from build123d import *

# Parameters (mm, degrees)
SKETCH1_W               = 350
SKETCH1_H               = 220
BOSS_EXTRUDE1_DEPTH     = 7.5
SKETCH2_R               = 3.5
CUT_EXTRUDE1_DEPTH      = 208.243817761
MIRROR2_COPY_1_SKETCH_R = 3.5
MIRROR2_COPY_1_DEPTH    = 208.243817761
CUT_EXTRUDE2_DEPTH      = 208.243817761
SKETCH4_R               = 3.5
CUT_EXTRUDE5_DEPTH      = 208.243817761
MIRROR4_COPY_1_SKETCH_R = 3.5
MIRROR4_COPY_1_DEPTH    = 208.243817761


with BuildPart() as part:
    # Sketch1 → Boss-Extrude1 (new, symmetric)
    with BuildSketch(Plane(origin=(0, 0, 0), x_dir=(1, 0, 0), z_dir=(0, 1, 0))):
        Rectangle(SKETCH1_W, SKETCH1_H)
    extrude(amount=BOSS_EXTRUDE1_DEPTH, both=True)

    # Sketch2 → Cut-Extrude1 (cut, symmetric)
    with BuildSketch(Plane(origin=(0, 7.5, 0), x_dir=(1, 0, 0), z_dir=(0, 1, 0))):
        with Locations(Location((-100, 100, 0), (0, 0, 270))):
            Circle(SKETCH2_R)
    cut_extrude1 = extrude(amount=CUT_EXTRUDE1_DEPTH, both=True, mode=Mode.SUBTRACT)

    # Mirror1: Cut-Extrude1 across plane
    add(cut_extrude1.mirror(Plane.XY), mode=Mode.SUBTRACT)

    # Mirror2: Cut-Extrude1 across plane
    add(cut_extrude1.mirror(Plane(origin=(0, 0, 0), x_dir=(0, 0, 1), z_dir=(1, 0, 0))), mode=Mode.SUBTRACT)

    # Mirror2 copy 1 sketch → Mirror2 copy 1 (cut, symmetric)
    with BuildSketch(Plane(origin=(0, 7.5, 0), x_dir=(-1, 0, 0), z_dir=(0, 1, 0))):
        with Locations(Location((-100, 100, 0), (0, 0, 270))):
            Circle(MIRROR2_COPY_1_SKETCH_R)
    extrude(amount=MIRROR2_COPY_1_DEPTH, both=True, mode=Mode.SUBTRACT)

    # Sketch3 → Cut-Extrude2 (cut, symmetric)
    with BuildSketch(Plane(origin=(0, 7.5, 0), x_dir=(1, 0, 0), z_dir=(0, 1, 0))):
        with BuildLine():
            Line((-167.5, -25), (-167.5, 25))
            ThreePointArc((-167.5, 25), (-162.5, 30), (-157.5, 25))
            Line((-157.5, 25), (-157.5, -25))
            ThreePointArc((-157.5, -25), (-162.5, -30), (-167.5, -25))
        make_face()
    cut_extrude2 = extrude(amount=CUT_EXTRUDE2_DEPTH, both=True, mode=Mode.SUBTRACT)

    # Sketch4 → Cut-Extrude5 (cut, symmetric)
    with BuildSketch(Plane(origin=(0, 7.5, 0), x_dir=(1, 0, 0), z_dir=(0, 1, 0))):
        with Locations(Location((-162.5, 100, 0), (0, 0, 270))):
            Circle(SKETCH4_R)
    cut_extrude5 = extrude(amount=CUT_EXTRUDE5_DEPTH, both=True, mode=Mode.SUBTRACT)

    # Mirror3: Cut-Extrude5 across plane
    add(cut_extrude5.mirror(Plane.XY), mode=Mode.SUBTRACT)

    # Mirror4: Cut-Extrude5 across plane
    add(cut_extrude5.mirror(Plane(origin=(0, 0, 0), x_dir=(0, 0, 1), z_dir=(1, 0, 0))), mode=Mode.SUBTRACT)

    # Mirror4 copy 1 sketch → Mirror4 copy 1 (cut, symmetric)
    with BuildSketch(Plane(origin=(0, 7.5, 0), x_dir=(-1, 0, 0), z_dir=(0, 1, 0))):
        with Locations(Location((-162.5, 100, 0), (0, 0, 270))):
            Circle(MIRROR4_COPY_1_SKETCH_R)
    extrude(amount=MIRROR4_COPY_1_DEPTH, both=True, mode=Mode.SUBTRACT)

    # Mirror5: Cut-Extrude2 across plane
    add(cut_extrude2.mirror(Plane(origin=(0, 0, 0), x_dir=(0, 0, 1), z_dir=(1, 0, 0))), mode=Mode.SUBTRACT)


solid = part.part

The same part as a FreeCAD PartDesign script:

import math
import FreeCAD as App
import Part
import Sketcher

doc = App.newDocument("Part")
body = doc.addObject("PartDesign::Body", "Body")

# Sketch on XZ plane
sketch1 = body.newObject("Sketcher::SketchObject", "Sketch")
sketch1.AttachmentSupport = (doc.getObject("XZ_Plane"), [""])
sketch1.MapMode = "FlatFace"
sketch1.addGeometry(Part.LineSegment(App.Vector(-175, -110, 0), App.Vector(-175, 110, 0)), False)
sketch1.addGeometry(Part.LineSegment(App.Vector(-175, 110, 0), App.Vector(175, 110, 0)), False)
sketch1.addGeometry(Part.LineSegment(App.Vector(175, 110, 0), App.Vector(175, -110, 0)), False)
sketch1.addGeometry(Part.LineSegment(App.Vector(175, -110, 0), App.Vector(-175, -110, 0)), False)
sketch1.addConstraint(Sketcher.Constraint("Coincident", 0, 2, 1, 1))
sketch1.addConstraint(Sketcher.Constraint("Coincident", 1, 2, 2, 1))
sketch1.addConstraint(Sketcher.Constraint("Coincident", 2, 2, 3, 1))
sketch1.addConstraint(Sketcher.Constraint("Coincident", 3, 2, 0, 1))
sketch1.addConstraint(Sketcher.Constraint("Vertical", 0))
sketch1.addConstraint(Sketcher.Constraint("Horizontal", 1))
sketch1.addConstraint(Sketcher.Constraint("Vertical", 2))
sketch1.addConstraint(Sketcher.Constraint("Horizontal", 3))
sketch1.addConstraint(Sketcher.Constraint("Symmetric", 0, 2, 2, 2, -1, 1))
sketch1.addConstraint(Sketcher.Constraint("DistanceX", 1, 1, 1, 2, 350.0))
sketch1.addConstraint(Sketcher.Constraint("DistanceY", 0, 1, 0, 2, 220.0))
pad1 = body.newObject("PartDesign::Pad", "Pad")
pad1.Profile = sketch1
pad1.Length = 15
pad1.Midplane = True

# Sketch on XZ plane
sketch2 = body.newObject("Sketcher::SketchObject", "Sketch001")
sketch2.AttachmentSupport = (doc.getObject("XZ_Plane"), [""])
sketch2.MapMode = "FlatFace"
sketch2.AttachmentOffset = App.Placement(App.Vector(0, 0, -7.5), App.Rotation())
sketch2.addGeometry(Part.Circle(App.Vector(-100, -100, 0), App.Vector(0, 0, 1), 3.5), False)
sketch2.addConstraint(Sketcher.Constraint("Diameter", 0, 7.0))
sketch2.addConstraint(Sketcher.Constraint("DistanceX", 0, 3, -1, 1, 100.0))
sketch2.addConstraint(Sketcher.Constraint("DistanceY", 0, 3, -1, 1, 100.0))
pocket1 = body.newObject("PartDesign::Pocket", "Pocket")
pocket1.Profile = sketch2
pocket1.Length = 416.487636
pocket1.Midplane = True
doc.recompute()

mirrored = body.newObject("PartDesign::Mirrored", "Mirrored")
mirrored.Originals = [pocket1]
mirrored.MirrorPlane = (doc.getObject("XY_Plane"), [""])
body.Tip = mirrored
doc.recompute()

mirrored2 = body.newObject("PartDesign::Mirrored", "Mirrored001")
mirrored2.Originals = [pocket1]
mirrored2.MirrorPlane = (doc.getObject("YZ_Plane"), [""])
body.Tip = mirrored2

# Sketch on XZ plane
sketch3 = body.newObject("Sketcher::SketchObject", "Sketch002")
sketch3.AttachmentSupport = (doc.getObject("XZ_Plane"), [""])
sketch3.MapMode = "FlatFace"
sketch3.AttachmentOffset = App.Placement(App.Vector(0, 0, -7.5), App.Rotation())
sketch3.addGeometry(Part.Circle(App.Vector(100, 100, 0), App.Vector(0, 0, 1), 3.5), False)
sketch3.addConstraint(Sketcher.Constraint("Diameter", 0, 7.0))
sketch3.addConstraint(Sketcher.Constraint("DistanceX", -1, 1, 0, 3, 100.0))
sketch3.addConstraint(Sketcher.Constraint("DistanceY", -1, 1, 0, 3, 100.0))
pocket2 = body.newObject("PartDesign::Pocket", "Pocket001")
pocket2.Profile = sketch3
pocket2.Length = 416.487636
pocket2.Midplane = True

# Sketch on XZ plane
sketch4 = body.newObject("Sketcher::SketchObject", "Sketch003")
sketch4.AttachmentSupport = (doc.getObject("XZ_Plane"), [""])
sketch4.MapMode = "FlatFace"
sketch4.AttachmentOffset = App.Placement(App.Vector(0, 0, -7.5), App.Rotation())
sketch4.addGeometry(Part.LineSegment(App.Vector(-168, -25, 0), App.Vector(-168, 25, 0)), False)
sketch4.addGeometry(Part.ArcOfCircle(Part.Circle(App.Vector(-162, 25, 0), App.Vector(0, 0, 1), 5), math.radians(0), math.radians(180)), False)
sketch4.addGeometry(Part.LineSegment(App.Vector(-158, 25, 0), App.Vector(-158, -25, 0)), False)
sketch4.addGeometry(Part.ArcOfCircle(Part.Circle(App.Vector(-162, -25, 0), App.Vector(0, 0, 1), 5), math.radians(180), math.radians(360)), False)
sketch4.addConstraint(Sketcher.Constraint("Tangent", 0, 2, 1, 2))
sketch4.addConstraint(Sketcher.Constraint("Tangent", 1, 1, 2, 1))
sketch4.addConstraint(Sketcher.Constraint("Tangent", 2, 2, 3, 2))
sketch4.addConstraint(Sketcher.Constraint("Tangent", 3, 1, 0, 1))
sketch4.addConstraint(Sketcher.Constraint("Vertical", 0))
sketch4.addConstraint(Sketcher.Constraint("Vertical", 2))
sketch4.addConstraint(Sketcher.Constraint("Radius", 1, 5.0))
sketch4.addConstraint(Sketcher.Constraint("DistanceY", 0, 1, 0, 2, 50.0))
sketch4.addConstraint(Sketcher.Constraint("DistanceY", -1, 1, 1, 3, 25.0))
sketch4.addConstraint(Sketcher.Constraint("DistanceX", 1, 3, -1, 1, 162.5))
pocket3 = body.newObject("PartDesign::Pocket", "Pocket002")
pocket3.Profile = sketch4
pocket3.Length = 416.487636
pocket3.Midplane = True

# Sketch on XZ plane
sketch5 = body.newObject("Sketcher::SketchObject", "Sketch004")
sketch5.AttachmentSupport = (doc.getObject("XZ_Plane"), [""])
sketch5.MapMode = "FlatFace"
sketch5.AttachmentOffset = App.Placement(App.Vector(0, 0, -7.5), App.Rotation())
sketch5.addGeometry(Part.Circle(App.Vector(-162.5, -100, 0), App.Vector(0, 0, 1), 3.5), False)
sketch5.addConstraint(Sketcher.Constraint("Diameter", 0, 7.0))
sketch5.addConstraint(Sketcher.Constraint("DistanceY", 0, 3, -1, 1, 100.0))
sketch5.addConstraint(Sketcher.Constraint("DistanceX", 0, 3, -1, 1, 162.5))
pocket4 = body.newObject("PartDesign::Pocket", "Pocket003")
pocket4.Profile = sketch5
pocket4.Length = 416.487636
pocket4.Midplane = True
doc.recompute()

mirrored3 = body.newObject("PartDesign::Mirrored", "Mirrored002")
mirrored3.Originals = [pocket4]
mirrored3.MirrorPlane = (doc.getObject("XY_Plane"), [""])
body.Tip = mirrored3
doc.recompute()

mirrored4 = body.newObject("PartDesign::Mirrored", "Mirrored003")
mirrored4.Originals = [pocket4]
mirrored4.MirrorPlane = (doc.getObject("YZ_Plane"), [""])
body.Tip = mirrored4

# Sketch on XZ plane
sketch6 = body.newObject("Sketcher::SketchObject", "Sketch005")
sketch6.AttachmentSupport = (doc.getObject("XZ_Plane"), [""])
sketch6.MapMode = "FlatFace"
sketch6.AttachmentOffset = App.Placement(App.Vector(0, 0, -7.5), App.Rotation())
sketch6.addGeometry(Part.Circle(App.Vector(162.5, 100, 0), App.Vector(0, 0, 1), 3.5), False)
sketch6.addConstraint(Sketcher.Constraint("Diameter", 0, 7.0))
sketch6.addConstraint(Sketcher.Constraint("DistanceY", -1, 1, 0, 3, 100.0))
sketch6.addConstraint(Sketcher.Constraint("DistanceX", -1, 1, 0, 3, 162.5))
pocket5 = body.newObject("PartDesign::Pocket", "Pocket004")
pocket5.Profile = sketch6
pocket5.Length = 416.487636
pocket5.Midplane = True
doc.recompute()

mirrored5 = body.newObject("PartDesign::Mirrored", "Mirrored004")
mirrored5.Originals = [pocket3]
mirrored5.MirrorPlane = (doc.getObject("YZ_Plane"), [""])
body.Tip = mirrored5

doc.recompute()
